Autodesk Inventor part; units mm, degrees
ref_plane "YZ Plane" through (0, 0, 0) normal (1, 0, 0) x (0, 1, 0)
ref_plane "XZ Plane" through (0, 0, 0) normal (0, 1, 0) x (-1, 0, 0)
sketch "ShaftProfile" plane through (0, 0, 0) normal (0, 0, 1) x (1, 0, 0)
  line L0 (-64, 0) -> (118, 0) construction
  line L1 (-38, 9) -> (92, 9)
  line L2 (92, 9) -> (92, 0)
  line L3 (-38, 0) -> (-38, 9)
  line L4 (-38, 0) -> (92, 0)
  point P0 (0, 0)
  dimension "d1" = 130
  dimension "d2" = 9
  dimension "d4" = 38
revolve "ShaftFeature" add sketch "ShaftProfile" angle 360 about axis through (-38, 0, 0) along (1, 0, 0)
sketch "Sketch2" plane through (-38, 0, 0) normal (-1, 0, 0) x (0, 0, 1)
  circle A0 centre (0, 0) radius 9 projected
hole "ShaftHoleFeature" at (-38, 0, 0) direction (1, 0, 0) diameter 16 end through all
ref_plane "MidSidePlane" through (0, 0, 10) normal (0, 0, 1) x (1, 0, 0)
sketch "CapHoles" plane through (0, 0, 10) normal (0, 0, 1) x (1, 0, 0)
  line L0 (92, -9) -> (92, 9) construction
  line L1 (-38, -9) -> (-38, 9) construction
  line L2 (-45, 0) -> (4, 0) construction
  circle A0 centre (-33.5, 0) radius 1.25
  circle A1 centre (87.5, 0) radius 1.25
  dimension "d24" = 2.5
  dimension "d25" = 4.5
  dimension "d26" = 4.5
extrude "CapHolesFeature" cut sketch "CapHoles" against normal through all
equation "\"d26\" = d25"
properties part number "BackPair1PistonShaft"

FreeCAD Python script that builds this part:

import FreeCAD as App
import Part
import Sketcher

V = App.Vector
Q = App.Units.Quantity

doc = App.newDocument("Part")
body = doc.addObject("PartDesign::Body", "Body")

sketch1 = doc.addObject("Sketcher::SketchObject", "Sketch")
body.addObject(sketch1)
sketch1.AttachmentSupport = (doc.XY_Plane, [""])
sketch1.MapMode = "FlatFace"
sketch1.addGeometry(Part.LineSegment(V(92, 9, 0), V(-38, 9, 0)), False)
sketch1.addGeometry(Part.LineSegment(V(-38, 9, 0), V(-38, 0, 0)), False)
sketch1.addGeometry(Part.LineSegment(V(-38, 0, 0), V(92, 0, 0)), False)
sketch1.addGeometry(Part.LineSegment(V(92, 0, 0), V(92, 9, 0)), False)
sketch1.addConstraint(Sketcher.Constraint("Coincident", 0, 2, 1, 1))
sketch1.addConstraint(Sketcher.Constraint("Coincident", 1, 2, 2, 1))
sketch1.addConstraint(Sketcher.Constraint("Coincident", 2, 2, 3, 1))
sketch1.addConstraint(Sketcher.Constraint("Coincident", 3, 2, 0, 1))
sketch1.addConstraint(Sketcher.Constraint("Horizontal", 0))
sketch1.addConstraint(Sketcher.Constraint("Vertical", 1))
sketch1.addConstraint(Sketcher.Constraint("Horizontal", 2))
sketch1.addConstraint(Sketcher.Constraint("Vertical", 3))
sketch1.addConstraint(Sketcher.Constraint("PointOnObject", 1, 2, -1))
sketch1.addConstraint(Sketcher.Constraint("DistanceX", 0, 2, 0, 1, Q("130 mm")))
sketch1.addConstraint(Sketcher.Constraint("DistanceY", 1, 2, 1, 1, Q("9 mm")))
sketch1.addConstraint(Sketcher.Constraint("DistanceX", 0, 2, -1, 1, Q("38 mm")))
revolution = doc.addObject("PartDesign::Revolution", "Revolution")
body.addObject(revolution)
revolution.Profile = sketch1
revolution.ReferenceAxis = (sketch1, ["H_Axis"])
revolution.Angle = 360

sketch2 = doc.addObject("Sketcher::SketchObject", "Sketch001")
body.addObject(sketch2)
sketch2.AttachmentSupport = (doc.YZ_Plane, [""])
sketch2.MapMode = "FlatFace"
sketch2.AttachmentOffset = App.Placement(V(0, 0, -38), App.Rotation())
sketch2.addGeometry(Part.Circle(V(0, 0, 0), V(0, 0, 1), 8), False)
sketch2.addConstraint(Sketcher.Constraint("Coincident", 0, 3, -1, 1))
sketch2.addConstraint(Sketcher.Constraint("Diameter", 0, Q("16 mm")))
doc.recompute()
hole = doc.addObject("PartDesign::Hole", "Hole")
body.addObject(hole)
hole.Profile = sketch2
hole.ThreadType = "None"
hole.Diameter = 16
hole.DepthType = "ThroughAll"
hole.Reversed = True

sketch3 = doc.addObject("Sketcher::SketchObject", "Sketch002")
body.addObject(sketch3)
sketch3.AttachmentSupport = (doc.XY_Plane, [""])
sketch3.MapMode = "FlatFace"
sketch3.AttachmentOffset = App.Placement(V(0, 0, 10), App.Rotation())
sketch3.addGeometry(Part.Circle(V(-33.5, 0, 0), V(0, 0, 1), 1.25), False)
sketch3.addGeometry(Part.Circle(V(87.5, 0, 0), V(0, 0, 1), 1.25), False)
sketch3.addConstraint(Sketcher.Constraint("Equal", 0, 1))
sketch3.addConstraint(Sketcher.Constraint("PointOnObject", 0, 3, -1))
sketch3.addConstraint(Sketcher.Constraint("PointOnObject", 1, 3, -1))
sketch3.addConstraint(Sketcher.Constraint("Diameter", 0, Q("2.5 mm")))
sketch3.addConstraint(Sketcher.Constraint("DistanceX", 0, 3, 1, 3, Q("121 mm")))
sketch3.addConstraint(Sketcher.Constraint("DistanceX", 0, 3, -1, 1, Q("33.5 mm")))
pocket1 = doc.addObject("PartDesign::Pocket", "Pocket")
body.addObject(pocket1)
pocket1.Profile = sketch3
pocket1.Type = "ThroughAll"

doc.recompute()
